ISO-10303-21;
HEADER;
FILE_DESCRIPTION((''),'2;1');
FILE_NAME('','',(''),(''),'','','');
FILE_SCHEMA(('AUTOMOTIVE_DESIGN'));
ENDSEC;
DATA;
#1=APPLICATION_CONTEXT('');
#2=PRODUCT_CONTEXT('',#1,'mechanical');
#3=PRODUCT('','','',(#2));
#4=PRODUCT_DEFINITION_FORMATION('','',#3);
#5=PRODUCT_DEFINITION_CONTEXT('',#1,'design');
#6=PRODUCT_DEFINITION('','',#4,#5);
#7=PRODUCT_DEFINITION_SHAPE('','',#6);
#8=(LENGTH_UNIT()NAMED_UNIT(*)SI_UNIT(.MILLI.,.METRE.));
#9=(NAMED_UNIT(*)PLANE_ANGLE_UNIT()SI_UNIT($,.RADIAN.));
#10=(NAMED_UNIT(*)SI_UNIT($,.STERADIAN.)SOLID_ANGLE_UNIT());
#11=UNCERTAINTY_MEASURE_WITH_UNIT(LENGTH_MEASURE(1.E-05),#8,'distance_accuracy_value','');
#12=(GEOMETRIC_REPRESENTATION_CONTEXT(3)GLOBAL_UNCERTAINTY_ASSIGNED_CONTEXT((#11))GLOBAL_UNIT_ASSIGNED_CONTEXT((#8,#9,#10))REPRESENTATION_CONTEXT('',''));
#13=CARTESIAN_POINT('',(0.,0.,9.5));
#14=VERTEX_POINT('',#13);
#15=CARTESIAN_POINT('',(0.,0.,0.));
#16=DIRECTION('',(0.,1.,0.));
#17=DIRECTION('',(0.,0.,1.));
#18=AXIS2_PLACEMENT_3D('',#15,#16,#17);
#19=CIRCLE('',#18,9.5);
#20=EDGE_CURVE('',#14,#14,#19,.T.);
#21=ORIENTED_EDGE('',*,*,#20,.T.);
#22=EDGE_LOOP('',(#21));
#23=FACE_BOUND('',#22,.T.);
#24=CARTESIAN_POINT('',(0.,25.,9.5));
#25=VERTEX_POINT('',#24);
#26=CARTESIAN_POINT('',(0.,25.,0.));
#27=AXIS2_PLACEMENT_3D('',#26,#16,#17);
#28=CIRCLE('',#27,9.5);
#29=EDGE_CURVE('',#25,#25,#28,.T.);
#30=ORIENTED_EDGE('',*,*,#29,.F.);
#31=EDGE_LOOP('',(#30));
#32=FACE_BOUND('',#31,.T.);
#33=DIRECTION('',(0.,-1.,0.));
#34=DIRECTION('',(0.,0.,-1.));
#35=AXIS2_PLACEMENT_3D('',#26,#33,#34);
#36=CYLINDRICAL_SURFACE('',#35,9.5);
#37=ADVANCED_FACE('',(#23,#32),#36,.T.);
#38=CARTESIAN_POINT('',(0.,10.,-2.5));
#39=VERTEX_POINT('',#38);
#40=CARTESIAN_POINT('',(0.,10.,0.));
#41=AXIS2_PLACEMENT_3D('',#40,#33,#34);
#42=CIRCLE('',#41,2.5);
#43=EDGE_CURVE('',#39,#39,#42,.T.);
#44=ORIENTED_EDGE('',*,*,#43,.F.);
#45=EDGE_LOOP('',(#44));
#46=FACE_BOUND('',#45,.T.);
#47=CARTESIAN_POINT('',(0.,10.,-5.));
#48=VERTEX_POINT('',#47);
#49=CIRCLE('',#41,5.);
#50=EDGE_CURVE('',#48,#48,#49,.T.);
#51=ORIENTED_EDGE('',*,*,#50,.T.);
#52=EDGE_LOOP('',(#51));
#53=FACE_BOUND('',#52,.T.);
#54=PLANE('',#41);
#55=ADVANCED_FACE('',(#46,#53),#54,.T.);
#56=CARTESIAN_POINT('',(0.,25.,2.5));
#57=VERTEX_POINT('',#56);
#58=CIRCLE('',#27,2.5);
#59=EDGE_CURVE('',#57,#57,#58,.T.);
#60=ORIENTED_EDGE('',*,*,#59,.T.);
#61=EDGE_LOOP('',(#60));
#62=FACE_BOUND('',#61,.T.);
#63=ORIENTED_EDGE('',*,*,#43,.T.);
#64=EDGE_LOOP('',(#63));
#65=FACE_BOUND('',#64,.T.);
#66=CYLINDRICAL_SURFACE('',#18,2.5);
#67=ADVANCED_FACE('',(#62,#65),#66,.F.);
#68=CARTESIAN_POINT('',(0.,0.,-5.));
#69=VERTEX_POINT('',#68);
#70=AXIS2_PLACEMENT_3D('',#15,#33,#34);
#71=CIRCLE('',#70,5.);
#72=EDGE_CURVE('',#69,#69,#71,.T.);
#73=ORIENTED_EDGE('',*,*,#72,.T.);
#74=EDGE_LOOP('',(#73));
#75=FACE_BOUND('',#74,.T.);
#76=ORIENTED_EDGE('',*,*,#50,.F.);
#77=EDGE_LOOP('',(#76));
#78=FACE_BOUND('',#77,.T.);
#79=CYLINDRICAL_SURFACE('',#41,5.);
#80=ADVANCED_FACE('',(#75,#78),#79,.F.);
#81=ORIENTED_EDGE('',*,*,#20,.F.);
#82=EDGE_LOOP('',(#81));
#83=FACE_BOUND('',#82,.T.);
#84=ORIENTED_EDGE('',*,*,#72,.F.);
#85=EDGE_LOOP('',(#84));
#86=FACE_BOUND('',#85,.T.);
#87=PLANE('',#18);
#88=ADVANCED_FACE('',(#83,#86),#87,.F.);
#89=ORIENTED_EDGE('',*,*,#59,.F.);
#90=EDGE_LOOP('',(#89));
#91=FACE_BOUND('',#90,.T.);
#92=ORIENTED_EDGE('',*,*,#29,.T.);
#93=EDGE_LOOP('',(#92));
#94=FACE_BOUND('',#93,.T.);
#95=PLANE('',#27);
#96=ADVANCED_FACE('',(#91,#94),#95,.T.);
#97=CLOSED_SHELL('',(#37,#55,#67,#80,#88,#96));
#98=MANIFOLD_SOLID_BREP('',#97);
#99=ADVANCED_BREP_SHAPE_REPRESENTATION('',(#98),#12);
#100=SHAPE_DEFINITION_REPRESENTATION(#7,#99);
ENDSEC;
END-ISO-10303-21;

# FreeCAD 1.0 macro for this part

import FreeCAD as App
import Part
import Sketcher
from FreeCAD import Vector
Q = App.Units.Quantity

doc = App.newDocument("Part")
body = doc.addObject("PartDesign::Body", "Body")

# Sketch on XZ plane
sketch1 = body.newObject("Sketcher::SketchObject", "Sketch")
sketch1.AttachmentSupport = (doc.getObject("XZ_Plane"), [""])
sketch1.MapMode = "FlatFace"
sketch1.addGeometry(Part.Circle(Vector(0, 0, 0), Vector(0, 0, 1), 9.5), False)
sketch1.addConstraint([
    Sketcher.Constraint("Coincident", 0, 3, -1, 1),
    Sketcher.Constraint("Diameter", 0, Q("19 mm")),
])
pad1 = body.newObject("PartDesign::Pad", "Pad")
pad1.Profile = sketch1
pad1.Length = 25
pad1.Reversed = True

# Sketch on XZ plane
sketch2 = body.newObject("Sketcher::SketchObject", "Sketch001")
sketch2.AttachmentSupport = (doc.getObject("XZ_Plane"), [""])
sketch2.MapMode = "FlatFace"
sketch2.addGeometry(Part.Circle(Vector(0, 0, 0), Vector(0, 0, 1), 5), False)
sketch2.addConstraint([
    Sketcher.Constraint("Coincident", 0, 3, -1, 1),
    Sketcher.Constraint("Diameter", 0, Q("10 mm")),
])
pocket1 = body.newObject("PartDesign::Pocket", "Pocket")
pocket1.Profile = sketch2
pocket1.Length = 10

# Sketch on XZ plane
sketch3 = body.newObject("Sketcher::SketchObject", "Sketch002")
sketch3.AttachmentSupport = (doc.getObject("XZ_Plane"), [""])
sketch3.MapMode = "FlatFace"
sketch3.AttachmentOffset = App.Placement(Vector(0, 0, -25), App.Rotation())
sketch3.addGeometry(Part.Circle(Vector(0, 0, 0), Vector(0, 0, 1), 2.5), False)
sketch3.addConstraint([
    Sketcher.Constraint("Coincident", 0, 3, -1, 1),
    Sketcher.Constraint("Diameter", 0, Q("5 mm")),
])
pocket2 = body.newObject("PartDesign::Pocket", "Pocket001")
pocket2.Profile = sketch3
pocket2.Type = "ThroughAll"
pocket2.Reversed = True

doc.recompute()
